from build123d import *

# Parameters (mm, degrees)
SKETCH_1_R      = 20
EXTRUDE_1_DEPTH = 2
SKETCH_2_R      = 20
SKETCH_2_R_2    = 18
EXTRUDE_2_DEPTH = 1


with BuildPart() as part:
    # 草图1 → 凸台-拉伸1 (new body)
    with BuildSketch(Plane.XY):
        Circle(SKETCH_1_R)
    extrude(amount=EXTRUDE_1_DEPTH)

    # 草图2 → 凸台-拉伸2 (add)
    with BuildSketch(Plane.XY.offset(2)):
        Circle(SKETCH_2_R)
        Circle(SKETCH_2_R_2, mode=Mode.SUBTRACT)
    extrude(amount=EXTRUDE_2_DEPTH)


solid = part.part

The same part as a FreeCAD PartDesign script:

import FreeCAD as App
import Part
import Sketcher

V = App.Vector

doc = App.newDocument("Part")
body = doc.addObject("PartDesign::Body", "Body")

# Sketch on XY plane
sketch1 = body.newObject("Sketcher::SketchObject", "Sketch")
sketch1.AttachmentSupport = (doc.getObject("XY_Plane"), [""])
sketch1.MapMode = "FlatFace"
sketch1.addGeometry(Part.Circle(V(0, 0, 0), V(0, 0, 1), 20), False)
sketch1.addConstraint([
    Sketcher.Constraint("Coincident", 0, 3, -1, 1),
    Sketcher.Constraint("Diameter", 0, 40.0),
])
pad1 = body.newObject("PartDesign::Pad", "Pad")
pad1.Profile = sketch1
pad1.Length = 2

# Sketch on XY plane
sketch2 = body.newObject("Sketcher::SketchObject", "Sketch001")
sketch2.AttachmentSupport = (doc.getObject("XY_Plane"), [""])
sketch2.MapMode = "FlatFace"
sketch2.AttachmentOffset = App.Placement(V(0, 0, 2), App.Rotation())
sketch2.addGeometry([
    Part.Circle(V(0, 0, 0), V(0, 0, 1), 20),
    Part.Circle(V(0, 0, 0), V(0, 0, 1), 18),
], False)
sketch2.addConstraint([
    Sketcher.Constraint("Coincident", 0, 3, -1, 1),
    Sketcher.Constraint("Coincident", 1, 3, -1, 1),
    Sketcher.Constraint("Diameter", 0, 40.0),
    Sketcher.Constraint("Diameter", 1, 36.0),
])
pad2 = body.newObject("PartDesign::Pad", "Pad001")
pad2.Profile = sketch2
pad2.Length = 1

doc.recompute()
